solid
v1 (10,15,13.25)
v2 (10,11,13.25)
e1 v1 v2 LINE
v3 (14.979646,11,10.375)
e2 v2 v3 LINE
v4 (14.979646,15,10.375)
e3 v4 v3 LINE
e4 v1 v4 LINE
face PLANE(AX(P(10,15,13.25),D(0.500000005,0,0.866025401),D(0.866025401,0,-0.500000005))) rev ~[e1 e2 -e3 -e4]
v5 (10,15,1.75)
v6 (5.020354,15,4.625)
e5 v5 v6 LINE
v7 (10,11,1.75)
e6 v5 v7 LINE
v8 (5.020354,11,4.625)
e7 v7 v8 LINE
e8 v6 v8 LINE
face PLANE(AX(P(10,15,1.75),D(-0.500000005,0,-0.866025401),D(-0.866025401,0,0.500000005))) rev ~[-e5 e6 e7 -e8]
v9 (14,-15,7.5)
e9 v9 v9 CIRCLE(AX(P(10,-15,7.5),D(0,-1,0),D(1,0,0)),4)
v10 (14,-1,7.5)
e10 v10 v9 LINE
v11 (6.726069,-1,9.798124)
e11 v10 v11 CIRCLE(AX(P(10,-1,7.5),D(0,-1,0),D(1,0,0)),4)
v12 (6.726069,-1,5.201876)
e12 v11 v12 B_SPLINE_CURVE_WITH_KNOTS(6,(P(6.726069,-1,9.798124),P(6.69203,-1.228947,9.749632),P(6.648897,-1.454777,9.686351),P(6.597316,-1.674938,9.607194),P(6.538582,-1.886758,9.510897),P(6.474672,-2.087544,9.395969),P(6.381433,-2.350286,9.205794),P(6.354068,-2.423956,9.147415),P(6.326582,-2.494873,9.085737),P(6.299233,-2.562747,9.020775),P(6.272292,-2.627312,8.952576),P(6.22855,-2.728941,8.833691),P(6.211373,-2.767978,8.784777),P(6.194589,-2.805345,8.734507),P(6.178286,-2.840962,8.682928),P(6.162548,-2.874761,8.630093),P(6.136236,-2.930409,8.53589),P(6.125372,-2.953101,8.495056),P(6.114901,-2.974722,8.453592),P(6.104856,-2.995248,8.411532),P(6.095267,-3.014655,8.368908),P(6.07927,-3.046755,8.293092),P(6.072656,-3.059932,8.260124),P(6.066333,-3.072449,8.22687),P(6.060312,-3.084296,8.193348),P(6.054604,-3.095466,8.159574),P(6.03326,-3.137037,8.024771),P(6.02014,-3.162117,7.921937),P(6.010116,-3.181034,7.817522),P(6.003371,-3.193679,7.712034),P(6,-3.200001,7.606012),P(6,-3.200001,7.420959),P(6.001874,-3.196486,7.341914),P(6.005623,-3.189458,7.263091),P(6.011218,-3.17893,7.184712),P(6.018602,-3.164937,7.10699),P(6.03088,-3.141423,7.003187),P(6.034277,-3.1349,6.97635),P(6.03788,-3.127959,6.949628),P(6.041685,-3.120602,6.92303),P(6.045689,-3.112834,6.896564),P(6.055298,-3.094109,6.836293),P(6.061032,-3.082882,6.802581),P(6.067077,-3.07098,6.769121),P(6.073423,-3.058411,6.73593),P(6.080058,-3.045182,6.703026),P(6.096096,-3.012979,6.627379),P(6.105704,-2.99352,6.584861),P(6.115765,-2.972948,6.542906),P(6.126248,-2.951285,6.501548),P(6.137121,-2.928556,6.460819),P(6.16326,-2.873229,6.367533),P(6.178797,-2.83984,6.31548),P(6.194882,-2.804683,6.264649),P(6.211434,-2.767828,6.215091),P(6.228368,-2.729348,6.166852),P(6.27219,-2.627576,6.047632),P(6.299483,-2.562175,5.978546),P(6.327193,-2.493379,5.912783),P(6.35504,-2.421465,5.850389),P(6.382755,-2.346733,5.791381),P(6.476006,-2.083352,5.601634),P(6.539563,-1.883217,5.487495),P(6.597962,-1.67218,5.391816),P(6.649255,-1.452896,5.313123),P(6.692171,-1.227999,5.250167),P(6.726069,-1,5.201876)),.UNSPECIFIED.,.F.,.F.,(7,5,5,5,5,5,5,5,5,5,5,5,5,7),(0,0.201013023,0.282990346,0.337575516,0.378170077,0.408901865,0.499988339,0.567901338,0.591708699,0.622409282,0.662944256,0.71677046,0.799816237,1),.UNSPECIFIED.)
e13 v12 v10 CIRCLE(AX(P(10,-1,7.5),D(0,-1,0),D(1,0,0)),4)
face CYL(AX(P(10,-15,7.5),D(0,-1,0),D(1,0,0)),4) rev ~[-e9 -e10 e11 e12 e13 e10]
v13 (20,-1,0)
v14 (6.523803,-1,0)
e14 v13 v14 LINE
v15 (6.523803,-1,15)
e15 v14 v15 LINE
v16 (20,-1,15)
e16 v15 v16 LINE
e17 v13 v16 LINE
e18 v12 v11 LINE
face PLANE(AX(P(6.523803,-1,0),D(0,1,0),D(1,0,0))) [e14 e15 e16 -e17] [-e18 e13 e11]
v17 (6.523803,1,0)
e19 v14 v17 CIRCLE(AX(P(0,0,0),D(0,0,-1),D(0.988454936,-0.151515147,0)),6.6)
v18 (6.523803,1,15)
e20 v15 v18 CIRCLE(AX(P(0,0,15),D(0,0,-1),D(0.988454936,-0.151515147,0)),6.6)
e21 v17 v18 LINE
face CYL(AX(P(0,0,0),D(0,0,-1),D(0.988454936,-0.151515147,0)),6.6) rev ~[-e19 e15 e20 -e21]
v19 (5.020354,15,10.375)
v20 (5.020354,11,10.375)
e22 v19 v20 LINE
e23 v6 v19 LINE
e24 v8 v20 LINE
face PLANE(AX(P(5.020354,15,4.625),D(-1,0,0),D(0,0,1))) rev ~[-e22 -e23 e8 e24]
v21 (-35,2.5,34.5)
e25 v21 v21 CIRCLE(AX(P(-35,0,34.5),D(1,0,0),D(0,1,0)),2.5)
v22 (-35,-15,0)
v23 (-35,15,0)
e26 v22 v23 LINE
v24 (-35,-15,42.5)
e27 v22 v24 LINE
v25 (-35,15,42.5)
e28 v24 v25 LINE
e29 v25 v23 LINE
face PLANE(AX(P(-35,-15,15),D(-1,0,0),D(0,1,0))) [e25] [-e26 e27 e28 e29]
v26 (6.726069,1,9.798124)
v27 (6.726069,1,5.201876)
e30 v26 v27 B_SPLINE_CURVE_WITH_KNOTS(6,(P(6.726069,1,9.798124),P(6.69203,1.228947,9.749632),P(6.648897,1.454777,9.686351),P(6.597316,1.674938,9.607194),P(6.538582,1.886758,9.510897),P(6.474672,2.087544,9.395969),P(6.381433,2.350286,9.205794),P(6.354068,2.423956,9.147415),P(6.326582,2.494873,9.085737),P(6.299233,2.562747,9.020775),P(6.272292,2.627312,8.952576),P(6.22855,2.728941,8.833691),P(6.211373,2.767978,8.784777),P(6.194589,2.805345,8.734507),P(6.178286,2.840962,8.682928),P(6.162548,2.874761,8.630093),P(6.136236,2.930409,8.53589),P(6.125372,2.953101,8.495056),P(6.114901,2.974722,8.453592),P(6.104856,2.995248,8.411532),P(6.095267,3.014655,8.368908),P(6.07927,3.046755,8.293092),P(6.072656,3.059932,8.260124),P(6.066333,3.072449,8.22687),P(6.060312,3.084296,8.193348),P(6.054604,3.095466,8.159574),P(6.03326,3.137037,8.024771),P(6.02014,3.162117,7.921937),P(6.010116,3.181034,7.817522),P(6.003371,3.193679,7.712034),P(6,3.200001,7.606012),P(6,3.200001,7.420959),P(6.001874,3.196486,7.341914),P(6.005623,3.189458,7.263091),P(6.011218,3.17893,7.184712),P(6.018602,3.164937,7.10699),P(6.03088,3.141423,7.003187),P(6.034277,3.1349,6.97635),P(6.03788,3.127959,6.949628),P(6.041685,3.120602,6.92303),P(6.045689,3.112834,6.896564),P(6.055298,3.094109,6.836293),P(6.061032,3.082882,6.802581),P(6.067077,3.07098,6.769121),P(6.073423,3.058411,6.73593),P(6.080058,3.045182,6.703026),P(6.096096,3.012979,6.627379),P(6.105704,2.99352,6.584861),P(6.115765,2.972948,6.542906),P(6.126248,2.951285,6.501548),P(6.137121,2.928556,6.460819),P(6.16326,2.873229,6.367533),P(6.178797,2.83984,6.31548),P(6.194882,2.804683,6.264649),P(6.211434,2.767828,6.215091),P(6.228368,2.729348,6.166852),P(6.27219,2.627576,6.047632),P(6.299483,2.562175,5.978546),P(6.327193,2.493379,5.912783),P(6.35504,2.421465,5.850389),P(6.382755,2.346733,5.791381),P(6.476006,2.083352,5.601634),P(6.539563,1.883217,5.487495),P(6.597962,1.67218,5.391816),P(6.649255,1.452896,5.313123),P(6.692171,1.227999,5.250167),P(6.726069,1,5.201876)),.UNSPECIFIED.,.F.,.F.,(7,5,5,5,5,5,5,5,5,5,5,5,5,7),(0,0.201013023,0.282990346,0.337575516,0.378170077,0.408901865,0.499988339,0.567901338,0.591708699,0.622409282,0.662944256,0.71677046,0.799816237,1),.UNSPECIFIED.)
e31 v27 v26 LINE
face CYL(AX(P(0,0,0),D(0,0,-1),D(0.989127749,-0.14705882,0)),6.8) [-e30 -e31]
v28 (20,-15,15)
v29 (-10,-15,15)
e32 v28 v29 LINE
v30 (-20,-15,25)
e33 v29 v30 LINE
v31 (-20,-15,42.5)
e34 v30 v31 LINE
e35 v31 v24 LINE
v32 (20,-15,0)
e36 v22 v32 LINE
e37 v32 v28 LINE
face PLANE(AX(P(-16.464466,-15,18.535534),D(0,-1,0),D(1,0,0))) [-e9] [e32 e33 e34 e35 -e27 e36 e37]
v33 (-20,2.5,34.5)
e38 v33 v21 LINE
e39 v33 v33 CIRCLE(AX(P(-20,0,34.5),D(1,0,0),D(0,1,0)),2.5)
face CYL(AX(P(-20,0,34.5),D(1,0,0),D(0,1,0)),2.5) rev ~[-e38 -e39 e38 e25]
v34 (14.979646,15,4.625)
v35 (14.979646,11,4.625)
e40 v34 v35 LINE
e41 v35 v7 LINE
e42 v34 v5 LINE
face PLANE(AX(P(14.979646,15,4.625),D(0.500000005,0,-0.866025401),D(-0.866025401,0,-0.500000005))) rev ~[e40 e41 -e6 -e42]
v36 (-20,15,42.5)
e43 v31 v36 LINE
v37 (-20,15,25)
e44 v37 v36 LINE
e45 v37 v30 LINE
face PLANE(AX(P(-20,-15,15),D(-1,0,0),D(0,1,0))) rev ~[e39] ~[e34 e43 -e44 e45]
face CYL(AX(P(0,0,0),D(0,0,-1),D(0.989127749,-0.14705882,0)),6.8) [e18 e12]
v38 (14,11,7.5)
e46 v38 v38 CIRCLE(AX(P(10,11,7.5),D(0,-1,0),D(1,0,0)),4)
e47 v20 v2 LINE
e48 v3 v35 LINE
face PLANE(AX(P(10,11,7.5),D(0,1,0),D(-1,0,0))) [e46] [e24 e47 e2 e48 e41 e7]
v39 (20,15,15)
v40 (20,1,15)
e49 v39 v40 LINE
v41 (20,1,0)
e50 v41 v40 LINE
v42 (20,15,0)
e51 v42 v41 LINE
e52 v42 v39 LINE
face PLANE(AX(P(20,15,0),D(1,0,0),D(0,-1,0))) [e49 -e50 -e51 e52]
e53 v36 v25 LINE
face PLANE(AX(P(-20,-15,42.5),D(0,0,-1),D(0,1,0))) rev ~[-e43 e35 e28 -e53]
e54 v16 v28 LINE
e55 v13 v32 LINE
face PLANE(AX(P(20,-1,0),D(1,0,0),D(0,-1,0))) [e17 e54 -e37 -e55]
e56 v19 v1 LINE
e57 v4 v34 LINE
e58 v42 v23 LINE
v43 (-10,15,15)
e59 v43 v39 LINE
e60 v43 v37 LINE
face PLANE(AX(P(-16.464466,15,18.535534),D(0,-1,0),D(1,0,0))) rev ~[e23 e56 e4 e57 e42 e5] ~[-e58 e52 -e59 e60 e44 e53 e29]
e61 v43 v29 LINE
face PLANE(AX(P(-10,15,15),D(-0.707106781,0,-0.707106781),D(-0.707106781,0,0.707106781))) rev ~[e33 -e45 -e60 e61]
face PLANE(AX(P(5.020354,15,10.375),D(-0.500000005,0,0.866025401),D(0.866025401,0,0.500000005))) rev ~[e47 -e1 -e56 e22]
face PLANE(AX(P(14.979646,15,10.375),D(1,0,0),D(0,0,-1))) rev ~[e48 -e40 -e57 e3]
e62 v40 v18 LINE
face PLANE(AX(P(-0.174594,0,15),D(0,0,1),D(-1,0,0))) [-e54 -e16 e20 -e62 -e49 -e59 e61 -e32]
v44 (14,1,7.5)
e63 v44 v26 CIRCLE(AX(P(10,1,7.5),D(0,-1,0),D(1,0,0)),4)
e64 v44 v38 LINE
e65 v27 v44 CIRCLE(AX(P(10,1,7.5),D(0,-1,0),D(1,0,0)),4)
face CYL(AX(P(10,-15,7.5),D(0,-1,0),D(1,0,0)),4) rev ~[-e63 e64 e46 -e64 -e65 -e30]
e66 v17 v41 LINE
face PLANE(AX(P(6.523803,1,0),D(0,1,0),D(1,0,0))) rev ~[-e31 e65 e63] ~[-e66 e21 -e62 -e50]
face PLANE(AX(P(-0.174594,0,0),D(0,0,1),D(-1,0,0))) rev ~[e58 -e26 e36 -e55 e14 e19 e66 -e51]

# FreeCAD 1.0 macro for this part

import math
import FreeCAD as App
import Part
import Sketcher
Q = App.Units.Quantity

doc = App.newDocument("Part")
body = doc.addObject("PartDesign::Body", "Body")

# Sketch on XY plane
sketch1 = body.newObject("Sketcher::SketchObject", "Sketch")
sketch1.AttachmentSupport = (doc.getObject("XY_Plane"), [""])
sketch1.MapMode = "FlatFace"
sketch1.addGeometry([
    Part.ArcOfCircle(Part.Circle(App.Vector(0, 0, 0), App.Vector(0, 0, 1), 6.5), math.radians(9), math.radians(351)),  # 0
    Part.LineSegment(App.Vector(6.4, 1, 0), App.Vector(20, 1, 0)),  # 1
    Part.LineSegment(App.Vector(20, 1, 0), App.Vector(20, 15, 0)),  # 2
    Part.LineSegment(App.Vector(20, 15, 0), App.Vector(-15, 15, 0)),  # 3
    Part.LineSegment(App.Vector(-15, 15, 0), App.Vector(-15, 7.5, 0)),  # 4
    Part.LineSegment(App.Vector(-15, 7.5, 0), App.Vector(-30, 7.5, 0)),  # 5
    Part.LineSegment(App.Vector(-30, 7.5, 0), App.Vector(-45, 22.5, 0)),  # 6
    Part.LineSegment(App.Vector(-45, 22.5, 0), App.Vector(-45, 45, 0)),  # 7
    Part.LineSegment(App.Vector(-45, 45, 0), App.Vector(-180, 45, 0)),  # 8
    Part.LineSegment(App.Vector(-180, 45, 0), App.Vector(-180, -45, 0)),  # 9
    Part.LineSegment(App.Vector(-180, -45, 0), App.Vector(-45, -45, 0)),  # 10
    Part.LineSegment(App.Vector(-45, -45, 0), App.Vector(-45, -22.5, 0)),  # 11
    Part.LineSegment(App.Vector(-45, -22.5, 0), App.Vector(-30, -7.5, 0)),  # 12
    Part.LineSegment(App.Vector(-30, -7.5, 0), App.Vector(-15, -7.5, 0)),  # 13
    Part.LineSegment(App.Vector(-15, -7.5, 0), App.Vector(-15, -15, 0)),  # 14
    Part.LineSegment(App.Vector(-15, -15, 0), App.Vector(20, -15, 0)),  # 15
    Part.LineSegment(App.Vector(20, -15, 0), App.Vector(20, -1, 0)),  # 16
    Part.LineSegment(App.Vector(20, -1, 0), App.Vector(6.4, -1, 0)),  # 17
    Part.LineSegment(App.Vector(-60, 30, 0), App.Vector(-60, -30, 0)),  # 18
    Part.LineSegment(App.Vector(-60, -30, 0), App.Vector(-165, -30, 0)),  # 19
    Part.LineSegment(App.Vector(-165, -30, 0), App.Vector(-165, 30, 0)),  # 20
    Part.LineSegment(App.Vector(-165, 30, 0), App.Vector(-60, 30, 0)),  # 21
], False)
sketch1.addConstraint([
    Sketcher.Constraint("Coincident", 0, 1, 1, 1),
    Sketcher.Constraint("Coincident", 1, 2, 2, 1),
    Sketcher.Constraint("Coincident", 2, 2, 3, 1),
    Sketcher.Constraint("Coincident", 3, 2, 4, 1),
    Sketcher.Constraint("Coincident", 4, 2, 5, 1),
    Sketcher.Constraint("Coincident", 5, 2, 6, 1),
    Sketcher.Constraint("Coincident", 6, 2, 7, 1),
    Sketcher.Constraint("Coincident", 7, 2, 8, 1),
    Sketcher.Constraint("Coincident", 8, 2, 9, 1),
    Sketcher.Constraint("Coincident", 9, 2, 10, 1),
    Sketcher.Constraint("Coincident", 10, 2, 11, 1),
    Sketcher.Constraint("Coincident", 11, 2, 12, 1),
    Sketcher.Constraint("Coincident", 12, 2, 13, 1),
    Sketcher.Constraint("Coincident", 13, 2, 14, 1),
    Sketcher.Constraint("Coincident", 14, 2, 15, 1),
    Sketcher.Constraint("Coincident", 15, 2, 16, 1),
    Sketcher.Constraint("Coincident", 16, 2, 17, 1),
    Sketcher.Constraint("Coincident", 17, 2, 0, 2),
    Sketcher.Constraint("Coincident", 18, 2, 19, 1),
    Sketcher.Constraint("Coincident", 19, 2, 20, 1),
    Sketcher.Constraint("Coincident", 20, 2, 21, 1),
    Sketcher.Constraint("Coincident", 21, 2, 18, 1),
    Sketcher.Constraint("Horizontal", 1),
    Sketcher.Constraint("Vertical", 2),
    Sketcher.Constraint("Horizontal", 3),
    Sketcher.Constraint("Vertical", 4),
    Sketcher.Constraint("Horizontal", 5),
    Sketcher.Constraint("Vertical", 7),
    Sketcher.Constraint("Horizontal", 8),
    Sketcher.Constraint("Vertical", 9),
    Sketcher.Constraint("Horizontal", 10),
    Sketcher.Constraint("Vertical", 11),
    Sketcher.Constraint("Horizontal", 13),
    Sketcher.Constraint("Vertical", 14),
    Sketcher.Constraint("Horizontal", 15),
    Sketcher.Constraint("Vertical", 16),
    Sketcher.Constraint("Horizontal", 17),
    Sketcher.Constraint("Vertical", 18),
    Sketcher.Constraint("Horizontal", 19),
    Sketcher.Constraint("Vertical", 20),
    Sketcher.Constraint("Horizontal", 21),
    Sketcher.Constraint("Coincident", 0, 3, -1, 1),
    Sketcher.Constraint("Symmetric", 7, 2, 10, 2, -1),
    Sketcher.Constraint("Symmetric", 5, 2, 12, 2, -1),
    Sketcher.Constraint("Symmetric", 3, 2, 14, 2, -1),
    Sketcher.Constraint("Symmetric", 1, 2, 16, 2, -1),
    Sketcher.Constraint("Perpendicular", 6, 12),
    Sketcher.Constraint("Equal", 7, 11),
    Sketcher.Constraint("Radius", 0, 6.5),
    Sketcher.Constraint("DistanceX", 3, 2, 3, 1, 35.0),
    Sketcher.Constraint("DistanceX", 5, 2, 5, 1, 15.0),
    Sketcher.Constraint("DistanceX", 8, 2, 8, 1, 135.0),
    Sketcher.Constraint("DistanceX", 19, 2, 19, 1, 105.0),
    Sketcher.Constraint("DistanceY", 2, 1, 2, 2, 14.0),
    Sketcher.Constraint("DistanceY", 9, 2, 9, 1, 90.0),
    Sketcher.Constraint("DistanceY", 18, 2, 18, 1, 60.0),
    Sketcher.Constraint("DistanceY", 4, 2, 4, 1, 7.5),
    Sketcher.Constraint("DistanceY", 7, 1, 7, 2, 22.5),
    Sketcher.Constraint("DistanceY", -1, 1, 0, 1, 1.0),
    Sketcher.Constraint("DistanceX", -1, 1, 1, 2, 20.0),
    Sketcher.Constraint("DistanceX", 18, 2, -1, 1, 60.0),
    Sketcher.Constraint("DistanceY", 18, 2, -1, 1, 30.0),
])
pad1 = body.newObject("PartDesign::Pad", "Pad")
pad1.Profile = sketch1
pad1.Length = 15

# Sketch on XY plane
sketch2 = body.newObject("Sketcher::SketchObject", "Sketch001")
sketch2.AttachmentSupport = (doc.getObject("XY_Plane"), [""])
sketch2.MapMode = "FlatFace"
sketch2.AttachmentOffset = App.Placement(App.Vector(0, 0, 15), App.Rotation())
sketch2.addGeometry([
    Part.LineSegment(App.Vector(-165, 30, 0), App.Vector(-165, 20, 0)),  # 0
    Part.LineSegment(App.Vector(-165, 20, 0), App.Vector(-150, 30, 0)),  # 1
    Part.LineSegment(App.Vector(-150, 30, 0), App.Vector(-165, 30, 0)),  # 2
    Part.LineSegment(App.Vector(-165, -20, 0), App.Vector(-165, -30, 0)),  # 3
    Part.LineSegment(App.Vector(-165, -30, 0), App.Vector(-150, -30, 0)),  # 4
    Part.LineSegment(App.Vector(-150, -30, 0), App.Vector(-165, -20, 0)),  # 5
], False)
sketch2.addConstraint([
    Sketcher.Constraint("Coincident", 0, 2, 1, 1),
    Sketcher.Constraint("Coincident", 1, 2, 2, 1),
    Sketcher.Constraint("Coincident", 2, 2, 0, 1),
    Sketcher.Constraint("Coincident", 3, 2, 4, 1),
    Sketcher.Constraint("Coincident", 4, 2, 5, 1),
    Sketcher.Constraint("Coincident", 5, 2, 3, 1),
    Sketcher.Constraint("Vertical", 0),
    Sketcher.Constraint("Horizontal", 2),
    Sketcher.Constraint("Vertical", 3),
    Sketcher.Constraint("Horizontal", 4),
    Sketcher.Constraint("Symmetric", 2, 2, 3, 2, -1),
    Sketcher.Constraint("Vertical", 1, 2, 4, 2),
    Sketcher.Constraint("Equal", 0, 3),
    Sketcher.Constraint("DistanceX", 2, 2, 2, 1, 15.0),
    Sketcher.Constraint("DistanceY", 0, 2, 0, 1, 10.0),
    Sketcher.Constraint("DistanceX", 0, 2, -1, 1, 165.0),
    Sketcher.Constraint("DistanceY", -1, 1, 0, 2, 20.0),
])
pad2 = body.newObject("PartDesign::Pad", "Pad001")
pad2.Profile = sketch2
pad2.Length = 15
pad2.Reversed = True

# Sketch on XZ plane
sketch3 = body.newObject("Sketcher::SketchObject", "Sketch002")
sketch3.AttachmentSupport = (doc.getObject("XZ_Plane"), [""])
sketch3.MapMode = "FlatFace"
sketch3.AttachmentOffset = App.Placement(App.Vector(0, 0, 15), App.Rotation())
sketch3.addGeometry(Part.Circle(App.Vector(10, 7.5, 0), App.Vector(0, 0, 1), 4), False)
sketch3.addConstraint([
    Sketcher.Constraint("Diameter", 0, 8.0),
    Sketcher.Constraint("DistanceX", -1, 1, 0, 3, 10.0),
    Sketcher.Constraint("DistanceY", -1, 1, 0, 3, 7.5),
])
pocket1 = body.newObject("PartDesign::Pocket", "Pocket")
pocket1.Profile = sketch3
pocket1.Length = 30

# Sketch on XZ plane
sketch4 = body.newObject("Sketcher::SketchObject", "Sketch003")
sketch4.AttachmentSupport = (doc.getObject("XZ_Plane"), [""])
sketch4.MapMode = "FlatFace"
sketch4.AttachmentOffset = App.Placement(App.Vector(0, 0, 15), App.Rotation())
sketch4.addGeometry([
    Part.LineSegment(App.Vector(13, 3, 0), App.Vector(16, 8, 0)),  # 0
    Part.LineSegment(App.Vector(16, 8, 0), App.Vector(13, 12, 0)),  # 1
    Part.LineSegment(App.Vector(13, 12, 0), App.Vector(7, 12, 0)),  # 2
    Part.LineSegment(App.Vector(7, 12, 0), App.Vector(4, 8, 0)),  # 3
    Part.LineSegment(App.Vector(4, 8, 0), App.Vector(7, 3, 0)),  # 4
    Part.LineSegment(App.Vector(7, 3, 0), App.Vector(13, 3, 0)),  # 5
], False)
sketch4.addConstraint([
    Sketcher.Constraint("Coincident", 0, 2, 1, 1),
    Sketcher.Constraint("Coincident", 1, 2, 2, 1),
    Sketcher.Constraint("Coincident", 2, 2, 3, 1),
    Sketcher.Constraint("Coincident", 3, 2, 4, 1),
    Sketcher.Constraint("Coincident", 4, 2, 5, 1),
    Sketcher.Constraint("Coincident", 5, 2, 0, 1),
    Sketcher.Constraint("Horizontal", 2),
    Sketcher.Constraint("Horizontal", 5),
    Sketcher.Constraint("Parallel", 0, 3),
    Sketcher.Constraint("Parallel", 1, 4),
    Sketcher.Constraint("Horizontal", 0, 2, 3, 2),
    Sketcher.Constraint("Vertical", 2, 2, 4, 2),
    Sketcher.Constraint("Vertical", 1, 2, 5, 2),
    Sketcher.Constraint("Angle", 0, Q("60 deg")),
    Sketcher.Constraint("DistanceX", 2, 2, 2, 1, 5.75),
    Sketcher.Constraint("DistanceY", -1, 1, 0, 2, 7.5),
    Sketcher.Constraint("DistanceX", 3, 2, 0, 2, 11.5),
    Sketcher.Constraint("DistanceX", -1, 1, 0, 2, 15.75),
])
pocket2 = body.newObject("PartDesign::Pocket", "Pocket001")
pocket2.Profile = sketch4
pocket2.Length = 4

# Sketch on XY plane
sketch5 = body.newObject("Sketcher::SketchObject", "Sketch004")
sketch5.AttachmentSupport = (doc.getObject("XY_Plane"), [""])
sketch5.MapMode = "FlatFace"
sketch5.AttachmentOffset = App.Placement(App.Vector(0, 0, 15), App.Rotation())
sketch5.addGeometry([
    Part.LineSegment(App.Vector(-180, 25, 0), App.Vector(-180, -25, 0)),
    Part.LineSegment(App.Vector(-180, -25, 0), App.Vector(-165, -25, 0)),
    Part.LineSegment(App.Vector(-165, -25, 0), App.Vector(-165, 25, 0)),
    Part.LineSegment(App.Vector(-165, 25, 0), App.Vector(-180, 25, 0)),
], False)
sketch5.addConstraint([
    Sketcher.Constraint("Coincident", 0, 2, 1, 1),
    Sketcher.Constraint("Coincident", 1, 2, 2, 1),
    Sketcher.Constraint("Coincident", 2, 2, 3, 1),
    Sketcher.Constraint("Coincident", 3, 2, 0, 1),
    Sketcher.Constraint("Vertical", 0),
    Sketcher.Constraint("Horizontal", 1),
    Sketcher.Constraint("Vertical", 2),
    Sketcher.Constraint("Horizontal", 3),
    Sketcher.Constraint("DistanceX", 1, 1, 1, 2, 15.0),
    Sketcher.Constraint("DistanceY", 0, 2, 0, 1, 50.0),
    Sketcher.Constraint("DistanceX", 0, 2, -1, 1, 180.0),
    Sketcher.Constraint("DistanceY", 0, 2, -1, 1, 25.0),
])
pad3 = body.newObject("PartDesign::Pad", "Pad002")
pad3.Profile = sketch5
pad3.Length = 40

# Sketch on XZ plane
sketch6 = body.newObject("Sketcher::SketchObject", "Sketch005")
sketch6.AttachmentSupport = (doc.getObject("XZ_Plane"), [""])
sketch6.MapMode = "FlatFace"
sketch6.AttachmentOffset = App.Placement(App.Vector(0, 0, -25), App.Rotation())
sketch6.addGeometry([
    Part.LineSegment(App.Vector(-190, 15, 0), App.Vector(-180, 25, 0)),
    Part.LineSegment(App.Vector(-180, 25, 0), App.Vector(-180, 0, 0)),
    Part.LineSegment(App.Vector(-180, 0, 0), App.Vector(-190, 0, 0)),
    Part.LineSegment(App.Vector(-190, 0, 0), App.Vector(-190, 15, 0)),
], False)
sketch6.addConstraint([
    Sketcher.Constraint("Coincident", 0, 2, 1, 1),
    Sketcher.Constraint("Coincident", 1, 2, 2, 1),
    Sketcher.Constraint("Coincident", 2, 2, 3, 1),
    Sketcher.Constraint("Coincident", 3, 2, 0, 1),
    Sketcher.Constraint("Vertical", 1),
    Sketcher.Constraint("Horizontal", 2),
    Sketcher.Constraint("Vertical", 3),
    Sketcher.Constraint("PointOnObject", 1, 2, -1),
    Sketcher.Constraint("DistanceX", 2, 2, 2, 1, 10.0),
    Sketcher.Constraint("DistanceY", 1, 2, 1, 1, 25.0),
    Sketcher.Constraint("DistanceY", 3, 1, 3, 2, 15.0),
    Sketcher.Constraint("DistanceX", 0, 2, -1, 1, 180.0),
])
pad4 = body.newObject("PartDesign::Pad", "Pad003")
pad4.Profile = sketch6
pad4.Length = 50

# Sketch on YZ plane
sketch7 = body.newObject("Sketcher::SketchObject", "Sketch006")
sketch7.AttachmentSupport = (doc.getObject("YZ_Plane"), [""])
sketch7.MapMode = "FlatFace"
sketch7.AttachmentOffset = App.Placement(App.Vector(0, 0, -165), App.Rotation())
sketch7.addGeometry([
    Part.LineSegment(App.Vector(-10, 35.9, 0), App.Vector(-10, 30.9, 0)),
    Part.LineSegment(App.Vector(-10, 30.9, 0), App.Vector(10, 30.9, 0)),
    Part.LineSegment(App.Vector(10, 30.9, 0), App.Vector(10, 35.9, 0)),
    Part.LineSegment(App.Vector(10, 35.9, 0), App.Vector(-10, 35.9, 0)),
], False)
sketch7.addConstraint([
    Sketcher.Constraint("Coincident", 0, 2, 1, 1),
    Sketcher.Constraint("Coincident", 1, 2, 2, 1),
    Sketcher.Constraint("Coincident", 2, 2, 3, 1),
    Sketcher.Constraint("Coincident", 3, 2, 0, 1),
    Sketcher.Constraint("Vertical", 0),
    Sketcher.Constraint("Horizontal", 1),
    Sketcher.Constraint("Vertical", 2),
    Sketcher.Constraint("Horizontal", 3),
    Sketcher.Constraint("DistanceX", 1, 1, 1, 2, 20.0),
    Sketcher.Constraint("DistanceY", 0, 2, 0, 1, 5.0),
    Sketcher.Constraint("DistanceX", 0, 2, -1, 1, 10.0),
    Sketcher.Constraint("DistanceY", -1, 1, 0, 2, 30.934408),
])
pocket3 = body.newObject("PartDesign::Pocket", "Pocket002")
pocket3.Profile = sketch7
pocket3.Length = 15

# Sketch on YZ plane
sketch8 = body.newObject("Sketcher::SketchObject", "Sketch007")
sketch8.AttachmentSupport = (doc.getObject("YZ_Plane"), [""])
sketch8.MapMode = "FlatFace"
sketch8.AttachmentOffset = App.Placement(App.Vector(0, 0, -165), App.Rotation())
sketch8.addGeometry([
    Part.LineSegment(App.Vector(-15, 37, 0), App.Vector(-15, 30, 0)),
    Part.LineSegment(App.Vector(-15, 30, 0), App.Vector(15, 30, 0)),
    Part.LineSegment(App.Vector(15, 30, 0), App.Vector(15, 37, 0)),
    Part.LineSegment(App.Vector(15, 37, 0), App.Vector(-15, 37, 0)),
], False)
sketch8.addConstraint([
    Sketcher.Constraint("Coincident", 0, 2, 1, 1),
    Sketcher.Constraint("Coincident", 1, 2, 2, 1),
    Sketcher.Constraint("Coincident", 2, 2, 3, 1),
    Sketcher.Constraint("Coincident", 3, 2, 0, 1),
    Sketcher.Constraint("Vertical", 0),
    Sketcher.Constraint("Horizontal", 1),
    Sketcher.Constraint("Vertical", 2),
    Sketcher.Constraint("Horizontal", 3),
    Sketcher.Constraint("DistanceX", 1, 1, 1, 2, 30.0),
    Sketcher.Constraint("DistanceY", 0, 2, 0, 1, 7.2),
    Sketcher.Constraint("DistanceX", 0, 2, -1, 1, 15.0),
    Sketcher.Constraint("DistanceY", -1, 1, 0, 2, 30.191532),
])
pocket4 = body.newObject("PartDesign::Pocket", "Pocket003")
pocket4.Profile = sketch8
pocket4.Length = 3

# Sketch on XZ plane
sketch9 = body.newObject("Sketcher::SketchObject", "Sketch008")
sketch9.AttachmentSupport = (doc.getObject("XZ_Plane"), [""])
sketch9.MapMode = "FlatFace"
sketch9.AttachmentOffset = App.Placement(App.Vector(0, 0, -45), App.Rotation())
sketch9.addGeometry([
    Part.LineSegment(App.Vector(-30, 63, 0), App.Vector(-30, 0, 0)),
    Part.LineSegment(App.Vector(-30, 0, 0), App.Vector(-203, 0, 0)),
    Part.LineSegment(App.Vector(-203, 0, 0), App.Vector(-203, 63, 0)),
    Part.LineSegment(App.Vector(-203, 63, 0), App.Vector(-30, 63, 0)),
], False)
sketch9.addConstraint([
    Sketcher.Constraint("Coincident", 0, 2, 1, 1),
    Sketcher.Constraint("Coincident", 1, 2, 2, 1),
    Sketcher.Constraint("Coincident", 2, 2, 3, 1),
    Sketcher.Constraint("Coincident", 3, 2, 0, 1),
    Sketcher.Constraint("Vertical", 0),
    Sketcher.Constraint("Horizontal", 1),
    Sketcher.Constraint("Vertical", 2),
    Sketcher.Constraint("Horizontal", 3),
    Sketcher.Constraint("PointOnObject", 0, 2, -1),
    Sketcher.Constraint("DistanceX", 0, 2, -1, 1, 30.0),
    Sketcher.Constraint("DistanceY", 0, 2, 0, 1, 63.43742),
    Sketcher.Constraint("DistanceX", 1, 2, 1, 1, 173.297394),
])
pocket5 = body.newObject("PartDesign::Pocket", "Pocket004")
pocket5.Profile = sketch9
pocket5.Length = 100
pocket5.Reversed = True

# Sketch on XY plane
sketch10 = body.newObject("Sketcher::SketchObject", "Sketch009")
sketch10.AttachmentSupport = (doc.getObject("XY_Plane"), [""])
sketch10.MapMode = "FlatFace"
sketch10.AttachmentOffset = App.Placement(App.Vector(0, 0, 15), App.Rotation())
sketch10.addGeometry([
    Part.LineSegment(App.Vector(-35, 15, 0), App.Vector(-35, -15, 0)),
    Part.LineSegment(App.Vector(-35, -15, 0), App.Vector(-15, -15, 0)),
    Part.LineSegment(App.Vector(-15, -15, 0), App.Vector(-15, 15, 0)),
    Part.LineSegment(App.Vector(-15, 15, 0), App.Vector(-35, 15, 0)),
], False)
sketch10.addConstraint([
    Sketcher.Constraint("Coincident", 0, 2, 1, 1),
    Sketcher.Constraint("Coincident", 1, 2, 2, 1),
    Sketcher.Constraint("Coincident", 2, 2, 3, 1),
    Sketcher.Constraint("Coincident", 3, 2, 0, 1),
    Sketcher.Constraint("Vertical", 0),
    Sketcher.Constraint("Horizontal", 1),
    Sketcher.Constraint("Vertical", 2),
    Sketcher.Constraint("Horizontal", 3),
    Sketcher.Constraint("DistanceX", 1, 1, 1, 2, 20.0),
    Sketcher.Constraint("DistanceY", 0, 2, 0, 1, 30.0),
    Sketcher.Constraint("DistanceX", 0, 2, -1, 1, 35.0),
    Sketcher.Constraint("DistanceY", 0, 2, -1, 1, 15.0),
])
pad5 = body.newObject("PartDesign::Pad", "Pad004")
pad5.Profile = sketch10
pad5.Length = 15
pad5.Reversed = True

# Sketch on XY plane
sketch11 = body.newObject("Sketcher::SketchObject", "Sketch010")
sketch11.AttachmentSupport = (doc.getObject("XY_Plane"), [""])
sketch11.MapMode = "FlatFace"
sketch11.AttachmentOffset = App.Placement(App.Vector(0, 0, 15), App.Rotation())
sketch11.addGeometry([
    Part.LineSegment(App.Vector(-35, 15, 0), App.Vector(-35, -15, 0)),
    Part.LineSegment(App.Vector(-35, -15, 0), App.Vector(-20, -15, 0)),
    Part.LineSegment(App.Vector(-20, -15, 0), App.Vector(-20, 15, 0)),
    Part.LineSegment(App.Vector(-20, 15, 0), App.Vector(-35, 15, 0)),
], False)
sketch11.addConstraint([
    Sketcher.Constraint("Coincident", 0, 2, 1, 1),
    Sketcher.Constraint("Coincident", 1, 2, 2, 1),
    Sketcher.Constraint("Coincident", 2, 2, 3, 1),
    Sketcher.Constraint("Coincident", 3, 2, 0, 1),
    Sketcher.Constraint("Vertical", 0),
    Sketcher.Constraint("Horizontal", 1),
    Sketcher.Constraint("Vertical", 2),
    Sketcher.Constraint("Horizontal", 3),
    Sketcher.Constraint("DistanceX", 1, 1, 1, 2, 15.0),
    Sketcher.Constraint("DistanceY", 0, 2, 0, 1, 30.0),
    Sketcher.Constraint("DistanceX", 0, 2, -1, 1, 35.0),
    Sketcher.Constraint("DistanceY", 0, 2, -1, 1, 15.0),
])
pad6 = body.newObject("PartDesign::Pad", "Pad005")
pad6.Profile = sketch11
pad6.Length = 60

# Sketch on YZ plane
sketch12 = body.newObject("Sketcher::SketchObject", "Sketch011")
sketch12.AttachmentSupport = (doc.getObject("YZ_Plane"), [""])
sketch12.MapMode = "FlatFace"
sketch12.AttachmentOffset = App.Placement(App.Vector(0, 0, -20), App.Rotation())
sketch12.addGeometry(Part.Circle(App.Vector(0, 65, 0), App.Vector(0, 0, 1), 2.5), False)
sketch12.addConstraint([
    Sketcher.Constraint("PointOnObject", 0, 3, -2),
    Sketcher.Constraint("Diameter", 0, 5.0),
    Sketcher.Constraint("DistanceY", -1, 1, 0, 3, 65.0),
])
pocket6 = body.newObject("PartDesign::Pocket", "Pocket005")
pocket6.Profile = sketch12
pocket6.Length = 15

# Sketch on XZ plane
sketch13 = body.newObject("Sketcher::SketchObject", "Sketch012")
sketch13.AttachmentSupport = (doc.getObject("XZ_Plane"), [""])
sketch13.MapMode = "FlatFace"
sketch13.AttachmentOffset = App.Placement(App.Vector(0, 0, -15), App.Rotation())
sketch13.addGeometry([
    Part.LineSegment(App.Vector(-20, 25, 0), App.Vector(-10, 15, 0)),
    Part.LineSegment(App.Vector(-10, 15, 0), App.Vector(-20, 15, 0)),
    Part.LineSegment(App.Vector(-20, 15, 0), App.Vector(-20, 25, 0)),
], False)
sketch13.addConstraint([
    Sketcher.Constraint("Coincident", 0, 2, 1, 1),
    Sketcher.Constraint("Coincident", 1, 2, 2, 1),
    Sketcher.Constraint("Coincident", 2, 2, 0, 1),
    Sketcher.Constraint("Horizontal", 1),
    Sketcher.Constraint("Vertical", 2),
    Sketcher.Constraint("Equal", 1, 2),
    Sketcher.Constraint("DistanceX", 1, 2, 1, 1, 10.0),
    Sketcher.Constraint("DistanceX", 0, 2, -1, 1, 10.0),
    Sketcher.Constraint("DistanceY", -1, 1, 0, 2, 15.0),
])
pad7 = body.newObject("PartDesign::Pad", "Pad006")
pad7.Profile = sketch13
pad7.Length = 30

# Sketch on XZ plane
sketch14 = body.newObject("Sketcher::SketchObject", "Sketch013")
sketch14.AttachmentSupport = (doc.getObject("XZ_Plane"), [""])
sketch14.MapMode = "FlatFace"
sketch14.AttachmentOffset = App.Placement(App.Vector(0, 0, 15), App.Rotation())
sketch14.addGeometry([
    Part.LineSegment(App.Vector(-35, 75, 0), App.Vector(-35, 55, 0)),
    Part.LineSegment(App.Vector(-35, 55, 0), App.Vector(-20, 55, 0)),
    Part.LineSegment(App.Vector(-20, 55, 0), App.Vector(-20, 75, 0)),
    Part.LineSegment(App.Vector(-20, 75, 0), App.Vector(-35, 75, 0)),
], False)
sketch14.addConstraint([
    Sketcher.Constraint("Coincident", 0, 2, 1, 1),
    Sketcher.Constraint("Coincident", 1, 2, 2, 1),
    Sketcher.Constraint("Coincident", 2, 2, 3, 1),
    Sketcher.Constraint("Coincident", 3, 2, 0, 1),
    Sketcher.Constraint("Vertical", 0),
    Sketcher.Constraint("Horizontal", 1),
    Sketcher.Constraint("Vertical", 2),
    Sketcher.Constraint("Horizontal", 3),
    Sketcher.Constraint("DistanceX", 1, 1, 1, 2, 15.0),
    Sketcher.Constraint("DistanceY", 0, 2, 0, 1, 20.0),
    Sketcher.Constraint("DistanceX", 0, 2, -1, 1, 35.0),
    Sketcher.Constraint("DistanceY", -1, 1, 0, 2, 55.0),
])
pocket7 = body.newObject("PartDesign::Pocket", "Pocket006")
pocket7.Profile = sketch14
pocket7.Length = 30

# Sketch on YZ plane
sketch15 = body.newObject("Sketcher::SketchObject", "Sketch014")
sketch15.AttachmentSupport = (doc.getObject("YZ_Plane"), [""])
sketch15.MapMode = "FlatFace"
sketch15.AttachmentOffset = App.Placement(App.Vector(0, 0, -20), App.Rotation())
sketch15.addGeometry(Part.Circle(App.Vector(0, 45, 0), App.Vector(0, 0, 1), 2.5), False)
sketch15.addConstraint([
    Sketcher.Constraint("PointOnObject", 0, 3, -2),
    Sketcher.Constraint("Diameter", 0, 5.0),
    Sketcher.Constraint("DistanceY", -1, 1, 0, 3, 45.0),
])
pocket8 = body.newObject("PartDesign::Pocket", "Pocket007")
pocket8.Profile = sketch15
pocket8.Length = 15

# Sketch on XY plane
sketch16 = body.newObject("Sketcher::SketchObject", "Sketch015")
sketch16.AttachmentSupport = (doc.getObject("XY_Plane"), [""])
sketch16.MapMode = "FlatFace"
sketch16.addGeometry(Part.Circle(App.Vector(0, 0, 0), App.Vector(0, 0, 1), 7), False)
sketch16.addConstraint([
    Sketcher.Constraint("Coincident", 0, 3, -1, 1),
    Sketcher.Constraint("Diameter", 0, 13.4),
])
pocket9 = body.newObject("PartDesign::Pocket", "Pocket008")
pocket9.Profile = sketch16
pocket9.Length = 15
pocket9.Reversed = True

# Sketch on XZ plane
sketch17 = body.newObject("Sketcher::SketchObject", "Sketch016")
sketch17.AttachmentSupport = (doc.getObject("XZ_Plane"), [""])
sketch17.MapMode = "FlatFace"
sketch17.AttachmentOffset = App.Placement(App.Vector(0, 0, -15), App.Rotation())
sketch17.addGeometry([
    Part.LineSegment(App.Vector(5, 5, 0), App.Vector(5, 10, 0)),  # 0
    Part.LineSegment(App.Vector(5, 10, 0), App.Vector(10, 13, 0)),  # 1
    Part.LineSegment(App.Vector(10, 13, 0), App.Vector(15, 10, 0)),  # 2
    Part.LineSegment(App.Vector(15, 10, 0), App.Vector(15, 5, 0)),  # 3
    Part.LineSegment(App.Vector(15, 5, 0), App.Vector(10, 2, 0)),  # 4
    Part.LineSegment(App.Vector(10, 2, 0), App.Vector(5, 5, 0)),  # 5
], False)
sketch17.addConstraint([
    Sketcher.Constraint("Coincident", 0, 2, 1, 1),
    Sketcher.Constraint("Coincident", 1, 2, 2, 1),
    Sketcher.Constraint("Coincident", 2, 2, 3, 1),
    Sketcher.Constraint("Coincident", 3, 2, 4, 1),
    Sketcher.Constraint("Coincident", 4, 2, 5, 1),
    Sketcher.Constraint("Coincident", 5, 2, 0, 1),
    Sketcher.Constraint("Vertical", 0),
    Sketcher.Constraint("Vertical", 3),
    Sketcher.Constraint("Parallel", 1, 4),
    Sketcher.Constraint("Parallel", 2, 5),
    Sketcher.Constraint("Horizontal", 0, 2, 2, 2),
    Sketcher.Constraint("Horizontal", 3, 2, 5, 2),
    Sketcher.Constraint("Vertical", 1, 2, 4, 2),
    Sketcher.Constraint("Angle", 1, Q("30 deg")),
    Sketcher.Constraint("DistanceX", -1, 1, 1, 2, 10.0),
    Sketcher.Constraint("DistanceY", 0, 1, 0, 2, 5.75),
    Sketcher.Constraint("DistanceY", 4, 2, 1, 2, 11.5),
    Sketcher.Constraint("DistanceY", -1, 1, 1, 2, 13.25),
])
pocket10 = body.newObject("PartDesign::Pocket", "Pocket009")
pocket10.Profile = sketch17
pocket10.Length = 4
pocket10.Reversed = True

# Sketch on XZ plane
sketch18 = body.newObject("Sketcher::SketchObject", "Sketch017")
sketch18.AttachmentSupport = (doc.getObject("XZ_Plane"), [""])
sketch18.MapMode = "FlatFace"
sketch18.AttachmentOffset = App.Placement(App.Vector(0, 0, 15), App.Rotation())
sketch18.addGeometry([
    Part.Circle(App.Vector(10, 7.5, 0), App.Vector(0, 0, 1), 5.8),
    Part.Circle(App.Vector(10, 7.5, 0), App.Vector(0, 0, 1), 4),
], False)
sketch18.addConstraint([
    Sketcher.Constraint("Coincident", 1, 3, 0, 3),
    Sketcher.Constraint("Diameter", 1, 8.0),
    Sketcher.Constraint("Diameter", 0, 11.5),
    Sketcher.Constraint("DistanceX", -1, 1, 0, 3, 10.0),
    Sketcher.Constraint("DistanceY", -1, 1, 0, 3, 7.5),
])
pad8 = body.newObject("PartDesign::Pad", "Pad007")
pad8.Profile = sketch18
pad8.Length = 4
pad8.Reversed = True

# Sketch on XY plane
sketch19 = body.newObject("Sketcher::SketchObject", "Sketch018")
sketch19.AttachmentSupport = (doc.getObject("XY_Plane"), [""])
sketch19.MapMode = "FlatFace"
sketch19.addGeometry([
    Part.ArcOfCircle(Part.Circle(App.Vector(0, 0, 0), App.Vector(0, 0, 1), 6.6), math.radians(9), math.radians(351)),
    Part.LineSegment(App.Vector(6.52, -1, 0), App.Vector(6.73, -1, 0)),
    Part.ArcOfCircle(Part.Circle(App.Vector(0, 0, 0), App.Vector(0, 0, 1), 6.8), math.radians(8), math.radians(352)),
    Part.LineSegment(App.Vector(6.73, 1, 0), App.Vector(6.52, 1, 0)),
], False)
sketch19.addConstraint([
    Sketcher.Constraint("Coincident", 0, 2, 1, 1),
    Sketcher.Constraint("Coincident", 1, 2, 2, 2),
    Sketcher.Constraint("Coincident", 2, 1, 3, 1),
    Sketcher.Constraint("Coincident", 3, 2, 0, 1),
    Sketcher.Constraint("Horizontal", 1),
    Sketcher.Constraint("Horizontal", 3),
    Sketcher.Constraint("Coincident", 0, 3, -1, 1),
    Sketcher.Constraint("Coincident", 2, 3, -1, 1),
    Sketcher.Constraint("Vertical", 1, 2, 2, 1),
    Sketcher.Constraint("Radius", 0, 6.6),
    Sketcher.Constraint("Radius", 2, 6.8),
    Sketcher.Constraint("DistanceY", 0, 2, -1, 1, 1.0),
])
pad9 = body.newObject("PartDesign::Pad", "Pad008")
pad9.Profile = sketch19
pad9.Length = 15

# Sketch on YZ plane
sketch20 = body.newObject("Sketcher::SketchObject", "Sketch019")
sketch20.AttachmentSupport = (doc.getObject("YZ_Plane"), [""])
sketch20.MapMode = "FlatFace"
sketch20.AttachmentOffset = App.Placement(App.Vector(0, 0, -20), App.Rotation())
sketch20.addGeometry([
    Part.LineSegment(App.Vector(-15, 55, 0), App.Vector(-15, 42, 0)),
    Part.LineSegment(App.Vector(-15, 42, 0), App.Vector(15, 42, 0)),
    Part.LineSegment(App.Vector(15, 42, 0), App.Vector(15, 55, 0)),
    Part.LineSegment(App.Vector(15, 55, 0), App.Vector(-15, 55, 0)),
], False)
sketch20.addConstraint([
    Sketcher.Constraint("Coincident", 0, 2, 1, 1),
    Sketcher.Constraint("Coincident", 1, 2, 2, 1),
    Sketcher.Constraint("Coincident", 2, 2, 3, 1),
    Sketcher.Constraint("Coincident", 3, 2, 0, 1),
    Sketcher.Constraint("Vertical", 0),
    Sketcher.Constraint("Horizontal", 1),
    Sketcher.Constraint("Vertical", 2),
    Sketcher.Constraint("Horizontal", 3),
    Sketcher.Constraint("DistanceX", 1, 1, 1, 2, 30.0),
    Sketcher.Constraint("DistanceY", 0, 2, 0, 1, 12.5),
    Sketcher.Constraint("DistanceX", 0, 2, -1, 1, 15.0),
    Sketcher.Constraint("DistanceY", -1, 1, 2, 2, 55.0),
])
pocket11 = body.newObject("PartDesign::Pocket", "Pocket010")
pocket11.Profile = sketch20
pocket11.Length = 15

# Sketch on YZ plane
sketch21 = body.newObject("Sketcher::SketchObject", "Sketch020")
sketch21.AttachmentSupport = (doc.getObject("YZ_Plane"), [""])
sketch21.MapMode = "FlatFace"
sketch21.AttachmentOffset = App.Placement(App.Vector(0, 0, -20), App.Rotation())
sketch21.addGeometry(Part.Circle(App.Vector(0, 34.5, 0), App.Vector(0, 0, 1), 2.5), False)
sketch21.addConstraint([
    Sketcher.Constraint("PointOnObject", 0, 3, -2),
    Sketcher.Constraint("Diameter", 0, 5.0),
    Sketcher.Constraint("DistanceY", -1, 1, 0, 3, 34.5),
])
pocket12 = body.newObject("PartDesign::Pocket", "Pocket011")
pocket12.Profile = sketch21
pocket12.Length = 15

doc.recompute()
